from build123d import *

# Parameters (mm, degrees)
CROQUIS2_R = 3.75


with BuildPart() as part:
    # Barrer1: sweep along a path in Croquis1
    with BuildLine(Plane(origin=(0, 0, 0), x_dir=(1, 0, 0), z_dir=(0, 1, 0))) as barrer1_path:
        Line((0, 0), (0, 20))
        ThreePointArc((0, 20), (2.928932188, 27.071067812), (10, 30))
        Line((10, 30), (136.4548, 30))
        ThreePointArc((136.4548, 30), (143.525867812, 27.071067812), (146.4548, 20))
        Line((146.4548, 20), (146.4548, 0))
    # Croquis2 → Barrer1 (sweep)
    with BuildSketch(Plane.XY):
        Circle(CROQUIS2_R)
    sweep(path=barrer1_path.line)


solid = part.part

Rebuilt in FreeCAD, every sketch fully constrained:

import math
import FreeCAD as App
import Part
import Sketcher
from FreeCAD import Vector

doc = App.newDocument("Part")
params = doc.addObject("Spreadsheet::Sheet", "Params")
for row, (alias, value) in enumerate([
    ("sketch1_diameter", "7.5 mm"),
    ("sketch2_radius", "10 mm"),
    ("sketch2_height", "20 mm"),
], start=1):
    params.set(f"A{row}", alias)
    params.set(f"B{row}", "=" + value)
    params.setAlias(f"B{row}", alias)

body = doc.addObject("PartDesign::Body", "Body")

# Sketch on XY plane
sketch1 = body.newObject("Sketcher::SketchObject", "Sketch")
sketch1.AttachmentSupport = (doc.getObject("XY_Plane"), [""])
sketch1.MapMode = "FlatFace"
sketch1.addGeometry(Part.Circle(Vector(0, 0, 0), Vector(0, 0, 1), 3.8), False)
sketch1.addConstraint([
    Sketcher.Constraint("Coincident", 0, 3, -1, 1),
    Sketcher.Constraint("Diameter", 0, 7.5),
])
sketch1.setExpression("Constraints[1]", "Params.sketch1_diameter")

# Sketch on XZ plane
sketch2 = body.newObject("Sketcher::SketchObject", "Sketch001")
sketch2.AttachmentSupport = (doc.getObject("XZ_Plane"), [""])
sketch2.MapMode = "FlatFace"
sketch2.addGeometry([
    Part.LineSegment(Vector(0, 0, 0), Vector(0, -20, 0)),  # 0
    Part.ArcOfCircle(Part.Circle(Vector(10, -20, 0), Vector(0, 0, 1), 10), math.radians(180), math.radians(270)),  # 1
    Part.LineSegment(Vector(10, -30, 0), Vector(136, -30, 0)),  # 2
    Part.ArcOfCircle(Part.Circle(Vector(136, -20, 0), Vector(0, 0, 1), 10), math.radians(-90), math.radians(0)),  # 3
    Part.LineSegment(Vector(146, -20, 0), Vector(146, 0, 0)),  # 4
], False)
sketch2.addConstraint([
    Sketcher.Constraint("Tangent", 0, 2, 1, 1),
    Sketcher.Constraint("Tangent", 1, 2, 2, 1),
    Sketcher.Constraint("Tangent", 2, 2, 3, 1),
    Sketcher.Constraint("Tangent", 3, 2, 4, 1),
    Sketcher.Constraint("Vertical", 0),
    Sketcher.Constraint("Horizontal", 2),
    Sketcher.Constraint("Vertical", 4),
    Sketcher.Constraint("Coincident", 0, 1, -1, 1),
    Sketcher.Constraint("Equal", 1, 3),
    Sketcher.Constraint("PointOnObject", 4, 2, -1),
    Sketcher.Constraint("Radius", 1, 10.0),
    Sketcher.Constraint("DistanceY", 0, 2, 0, 1, 20.0),
    Sketcher.Constraint("DistanceX", 2, 1, 2, 2, 126.4548),
])
sketch2.setExpression("Constraints[10]", "Params.sketch2_radius")
sketch2.setExpression("Constraints[11]", "Params.sketch2_height")
doc.recompute()

additivepipe = body.newObject("PartDesign::AdditivePipe", "AdditivePipe")
additivepipe.Profile = sketch1
additivepipe.Spine = (sketch2, ["Edge1", "Edge2", "Edge3", "Edge4", "Edge5"])

doc.recompute()
